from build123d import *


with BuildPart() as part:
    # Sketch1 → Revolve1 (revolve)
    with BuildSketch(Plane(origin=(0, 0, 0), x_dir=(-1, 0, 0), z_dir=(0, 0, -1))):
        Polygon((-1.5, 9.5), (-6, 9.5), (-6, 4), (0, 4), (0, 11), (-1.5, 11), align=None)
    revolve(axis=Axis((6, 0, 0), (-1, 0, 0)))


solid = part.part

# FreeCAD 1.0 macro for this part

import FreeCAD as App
import Part
import Sketcher

V = App.Vector
Q = App.Units.Quantity

doc = App.newDocument("Part")
body = doc.addObject("PartDesign::Body", "Body")

# Sketch on XY plane
sketch1 = doc.addObject("Sketcher::SketchObject", "Sketch")
body.addObject(sketch1)
sketch1.AttachmentSupport = (doc.XY_Plane, [""])
sketch1.MapMode = "FlatFace"
sketch1.addGeometry(Part.LineSegment(V(1.5, 9.5, 0), V(6, 9.5, 0)), False)
sketch1.addGeometry(Part.LineSegment(V(6, 9.5, 0), V(6, 4, 0)), False)
sketch1.addGeometry(Part.LineSegment(V(6, 4, 0), V(0, 4, 0)), False)
sketch1.addGeometry(Part.LineSegment(V(0, 4, 0), V(0, 11, 0)), False)
sketch1.addGeometry(Part.LineSegment(V(0, 11, 0), V(1.5, 11, 0)), False)
sketch1.addGeometry(Part.LineSegment(V(1.5, 11, 0), V(1.5, 9.5, 0)), False)
sketch1.addConstraint(Sketcher.Constraint("Coincident", 0, 2, 1, 1))
sketch1.addConstraint(Sketcher.Constraint("Coincident", 1, 2, 2, 1))
sketch1.addConstraint(Sketcher.Constraint("Coincident", 2, 2, 3, 1))
sketch1.addConstraint(Sketcher.Constraint("Coincident", 3, 2, 4, 1))
sketch1.addConstraint(Sketcher.Constraint("Coincident", 4, 2, 5, 1))
sketch1.addConstraint(Sketcher.Constraint("Coincident", 5, 2, 0, 1))
sketch1.addConstraint(Sketcher.Constraint("Horizontal", 0))
sketch1.addConstraint(Sketcher.Constraint("Vertical", 1))
sketch1.addConstraint(Sketcher.Constraint("Horizontal", 2))
sketch1.addConstraint(Sketcher.Constraint("Vertical", 3))
sketch1.addConstraint(Sketcher.Constraint("Horizontal", 4))
sketch1.addConstraint(Sketcher.Constraint("Vertical", 5))
sketch1.addConstraint(Sketcher.Constraint("PointOnObject", 2, 2, -2))
sketch1.addConstraint(Sketcher.Constraint("Equal", 4, 5))
sketch1.addConstraint(Sketcher.Constraint("DistanceX", 2, 2, 2, 1, Q("6 mm")))
sketch1.addConstraint(Sketcher.Constraint("DistanceY", 3, 1, 3, 2, Q("7 mm")))
sketch1.addConstraint(Sketcher.Constraint("DistanceX", 0, 1, 0, 2, Q("4.5 mm")))
sketch1.addConstraint(Sketcher.Constraint("DistanceY", -1, 1, 1, 2, Q("4 mm")))
revolution = doc.addObject("PartDesign::Revolution", "Revolution")
body.addObject(revolution)
revolution.Profile = sketch1
revolution.ReferenceAxis = (sketch1, ["H_Axis"])
revolution.Angle = 360

doc.recompute()
